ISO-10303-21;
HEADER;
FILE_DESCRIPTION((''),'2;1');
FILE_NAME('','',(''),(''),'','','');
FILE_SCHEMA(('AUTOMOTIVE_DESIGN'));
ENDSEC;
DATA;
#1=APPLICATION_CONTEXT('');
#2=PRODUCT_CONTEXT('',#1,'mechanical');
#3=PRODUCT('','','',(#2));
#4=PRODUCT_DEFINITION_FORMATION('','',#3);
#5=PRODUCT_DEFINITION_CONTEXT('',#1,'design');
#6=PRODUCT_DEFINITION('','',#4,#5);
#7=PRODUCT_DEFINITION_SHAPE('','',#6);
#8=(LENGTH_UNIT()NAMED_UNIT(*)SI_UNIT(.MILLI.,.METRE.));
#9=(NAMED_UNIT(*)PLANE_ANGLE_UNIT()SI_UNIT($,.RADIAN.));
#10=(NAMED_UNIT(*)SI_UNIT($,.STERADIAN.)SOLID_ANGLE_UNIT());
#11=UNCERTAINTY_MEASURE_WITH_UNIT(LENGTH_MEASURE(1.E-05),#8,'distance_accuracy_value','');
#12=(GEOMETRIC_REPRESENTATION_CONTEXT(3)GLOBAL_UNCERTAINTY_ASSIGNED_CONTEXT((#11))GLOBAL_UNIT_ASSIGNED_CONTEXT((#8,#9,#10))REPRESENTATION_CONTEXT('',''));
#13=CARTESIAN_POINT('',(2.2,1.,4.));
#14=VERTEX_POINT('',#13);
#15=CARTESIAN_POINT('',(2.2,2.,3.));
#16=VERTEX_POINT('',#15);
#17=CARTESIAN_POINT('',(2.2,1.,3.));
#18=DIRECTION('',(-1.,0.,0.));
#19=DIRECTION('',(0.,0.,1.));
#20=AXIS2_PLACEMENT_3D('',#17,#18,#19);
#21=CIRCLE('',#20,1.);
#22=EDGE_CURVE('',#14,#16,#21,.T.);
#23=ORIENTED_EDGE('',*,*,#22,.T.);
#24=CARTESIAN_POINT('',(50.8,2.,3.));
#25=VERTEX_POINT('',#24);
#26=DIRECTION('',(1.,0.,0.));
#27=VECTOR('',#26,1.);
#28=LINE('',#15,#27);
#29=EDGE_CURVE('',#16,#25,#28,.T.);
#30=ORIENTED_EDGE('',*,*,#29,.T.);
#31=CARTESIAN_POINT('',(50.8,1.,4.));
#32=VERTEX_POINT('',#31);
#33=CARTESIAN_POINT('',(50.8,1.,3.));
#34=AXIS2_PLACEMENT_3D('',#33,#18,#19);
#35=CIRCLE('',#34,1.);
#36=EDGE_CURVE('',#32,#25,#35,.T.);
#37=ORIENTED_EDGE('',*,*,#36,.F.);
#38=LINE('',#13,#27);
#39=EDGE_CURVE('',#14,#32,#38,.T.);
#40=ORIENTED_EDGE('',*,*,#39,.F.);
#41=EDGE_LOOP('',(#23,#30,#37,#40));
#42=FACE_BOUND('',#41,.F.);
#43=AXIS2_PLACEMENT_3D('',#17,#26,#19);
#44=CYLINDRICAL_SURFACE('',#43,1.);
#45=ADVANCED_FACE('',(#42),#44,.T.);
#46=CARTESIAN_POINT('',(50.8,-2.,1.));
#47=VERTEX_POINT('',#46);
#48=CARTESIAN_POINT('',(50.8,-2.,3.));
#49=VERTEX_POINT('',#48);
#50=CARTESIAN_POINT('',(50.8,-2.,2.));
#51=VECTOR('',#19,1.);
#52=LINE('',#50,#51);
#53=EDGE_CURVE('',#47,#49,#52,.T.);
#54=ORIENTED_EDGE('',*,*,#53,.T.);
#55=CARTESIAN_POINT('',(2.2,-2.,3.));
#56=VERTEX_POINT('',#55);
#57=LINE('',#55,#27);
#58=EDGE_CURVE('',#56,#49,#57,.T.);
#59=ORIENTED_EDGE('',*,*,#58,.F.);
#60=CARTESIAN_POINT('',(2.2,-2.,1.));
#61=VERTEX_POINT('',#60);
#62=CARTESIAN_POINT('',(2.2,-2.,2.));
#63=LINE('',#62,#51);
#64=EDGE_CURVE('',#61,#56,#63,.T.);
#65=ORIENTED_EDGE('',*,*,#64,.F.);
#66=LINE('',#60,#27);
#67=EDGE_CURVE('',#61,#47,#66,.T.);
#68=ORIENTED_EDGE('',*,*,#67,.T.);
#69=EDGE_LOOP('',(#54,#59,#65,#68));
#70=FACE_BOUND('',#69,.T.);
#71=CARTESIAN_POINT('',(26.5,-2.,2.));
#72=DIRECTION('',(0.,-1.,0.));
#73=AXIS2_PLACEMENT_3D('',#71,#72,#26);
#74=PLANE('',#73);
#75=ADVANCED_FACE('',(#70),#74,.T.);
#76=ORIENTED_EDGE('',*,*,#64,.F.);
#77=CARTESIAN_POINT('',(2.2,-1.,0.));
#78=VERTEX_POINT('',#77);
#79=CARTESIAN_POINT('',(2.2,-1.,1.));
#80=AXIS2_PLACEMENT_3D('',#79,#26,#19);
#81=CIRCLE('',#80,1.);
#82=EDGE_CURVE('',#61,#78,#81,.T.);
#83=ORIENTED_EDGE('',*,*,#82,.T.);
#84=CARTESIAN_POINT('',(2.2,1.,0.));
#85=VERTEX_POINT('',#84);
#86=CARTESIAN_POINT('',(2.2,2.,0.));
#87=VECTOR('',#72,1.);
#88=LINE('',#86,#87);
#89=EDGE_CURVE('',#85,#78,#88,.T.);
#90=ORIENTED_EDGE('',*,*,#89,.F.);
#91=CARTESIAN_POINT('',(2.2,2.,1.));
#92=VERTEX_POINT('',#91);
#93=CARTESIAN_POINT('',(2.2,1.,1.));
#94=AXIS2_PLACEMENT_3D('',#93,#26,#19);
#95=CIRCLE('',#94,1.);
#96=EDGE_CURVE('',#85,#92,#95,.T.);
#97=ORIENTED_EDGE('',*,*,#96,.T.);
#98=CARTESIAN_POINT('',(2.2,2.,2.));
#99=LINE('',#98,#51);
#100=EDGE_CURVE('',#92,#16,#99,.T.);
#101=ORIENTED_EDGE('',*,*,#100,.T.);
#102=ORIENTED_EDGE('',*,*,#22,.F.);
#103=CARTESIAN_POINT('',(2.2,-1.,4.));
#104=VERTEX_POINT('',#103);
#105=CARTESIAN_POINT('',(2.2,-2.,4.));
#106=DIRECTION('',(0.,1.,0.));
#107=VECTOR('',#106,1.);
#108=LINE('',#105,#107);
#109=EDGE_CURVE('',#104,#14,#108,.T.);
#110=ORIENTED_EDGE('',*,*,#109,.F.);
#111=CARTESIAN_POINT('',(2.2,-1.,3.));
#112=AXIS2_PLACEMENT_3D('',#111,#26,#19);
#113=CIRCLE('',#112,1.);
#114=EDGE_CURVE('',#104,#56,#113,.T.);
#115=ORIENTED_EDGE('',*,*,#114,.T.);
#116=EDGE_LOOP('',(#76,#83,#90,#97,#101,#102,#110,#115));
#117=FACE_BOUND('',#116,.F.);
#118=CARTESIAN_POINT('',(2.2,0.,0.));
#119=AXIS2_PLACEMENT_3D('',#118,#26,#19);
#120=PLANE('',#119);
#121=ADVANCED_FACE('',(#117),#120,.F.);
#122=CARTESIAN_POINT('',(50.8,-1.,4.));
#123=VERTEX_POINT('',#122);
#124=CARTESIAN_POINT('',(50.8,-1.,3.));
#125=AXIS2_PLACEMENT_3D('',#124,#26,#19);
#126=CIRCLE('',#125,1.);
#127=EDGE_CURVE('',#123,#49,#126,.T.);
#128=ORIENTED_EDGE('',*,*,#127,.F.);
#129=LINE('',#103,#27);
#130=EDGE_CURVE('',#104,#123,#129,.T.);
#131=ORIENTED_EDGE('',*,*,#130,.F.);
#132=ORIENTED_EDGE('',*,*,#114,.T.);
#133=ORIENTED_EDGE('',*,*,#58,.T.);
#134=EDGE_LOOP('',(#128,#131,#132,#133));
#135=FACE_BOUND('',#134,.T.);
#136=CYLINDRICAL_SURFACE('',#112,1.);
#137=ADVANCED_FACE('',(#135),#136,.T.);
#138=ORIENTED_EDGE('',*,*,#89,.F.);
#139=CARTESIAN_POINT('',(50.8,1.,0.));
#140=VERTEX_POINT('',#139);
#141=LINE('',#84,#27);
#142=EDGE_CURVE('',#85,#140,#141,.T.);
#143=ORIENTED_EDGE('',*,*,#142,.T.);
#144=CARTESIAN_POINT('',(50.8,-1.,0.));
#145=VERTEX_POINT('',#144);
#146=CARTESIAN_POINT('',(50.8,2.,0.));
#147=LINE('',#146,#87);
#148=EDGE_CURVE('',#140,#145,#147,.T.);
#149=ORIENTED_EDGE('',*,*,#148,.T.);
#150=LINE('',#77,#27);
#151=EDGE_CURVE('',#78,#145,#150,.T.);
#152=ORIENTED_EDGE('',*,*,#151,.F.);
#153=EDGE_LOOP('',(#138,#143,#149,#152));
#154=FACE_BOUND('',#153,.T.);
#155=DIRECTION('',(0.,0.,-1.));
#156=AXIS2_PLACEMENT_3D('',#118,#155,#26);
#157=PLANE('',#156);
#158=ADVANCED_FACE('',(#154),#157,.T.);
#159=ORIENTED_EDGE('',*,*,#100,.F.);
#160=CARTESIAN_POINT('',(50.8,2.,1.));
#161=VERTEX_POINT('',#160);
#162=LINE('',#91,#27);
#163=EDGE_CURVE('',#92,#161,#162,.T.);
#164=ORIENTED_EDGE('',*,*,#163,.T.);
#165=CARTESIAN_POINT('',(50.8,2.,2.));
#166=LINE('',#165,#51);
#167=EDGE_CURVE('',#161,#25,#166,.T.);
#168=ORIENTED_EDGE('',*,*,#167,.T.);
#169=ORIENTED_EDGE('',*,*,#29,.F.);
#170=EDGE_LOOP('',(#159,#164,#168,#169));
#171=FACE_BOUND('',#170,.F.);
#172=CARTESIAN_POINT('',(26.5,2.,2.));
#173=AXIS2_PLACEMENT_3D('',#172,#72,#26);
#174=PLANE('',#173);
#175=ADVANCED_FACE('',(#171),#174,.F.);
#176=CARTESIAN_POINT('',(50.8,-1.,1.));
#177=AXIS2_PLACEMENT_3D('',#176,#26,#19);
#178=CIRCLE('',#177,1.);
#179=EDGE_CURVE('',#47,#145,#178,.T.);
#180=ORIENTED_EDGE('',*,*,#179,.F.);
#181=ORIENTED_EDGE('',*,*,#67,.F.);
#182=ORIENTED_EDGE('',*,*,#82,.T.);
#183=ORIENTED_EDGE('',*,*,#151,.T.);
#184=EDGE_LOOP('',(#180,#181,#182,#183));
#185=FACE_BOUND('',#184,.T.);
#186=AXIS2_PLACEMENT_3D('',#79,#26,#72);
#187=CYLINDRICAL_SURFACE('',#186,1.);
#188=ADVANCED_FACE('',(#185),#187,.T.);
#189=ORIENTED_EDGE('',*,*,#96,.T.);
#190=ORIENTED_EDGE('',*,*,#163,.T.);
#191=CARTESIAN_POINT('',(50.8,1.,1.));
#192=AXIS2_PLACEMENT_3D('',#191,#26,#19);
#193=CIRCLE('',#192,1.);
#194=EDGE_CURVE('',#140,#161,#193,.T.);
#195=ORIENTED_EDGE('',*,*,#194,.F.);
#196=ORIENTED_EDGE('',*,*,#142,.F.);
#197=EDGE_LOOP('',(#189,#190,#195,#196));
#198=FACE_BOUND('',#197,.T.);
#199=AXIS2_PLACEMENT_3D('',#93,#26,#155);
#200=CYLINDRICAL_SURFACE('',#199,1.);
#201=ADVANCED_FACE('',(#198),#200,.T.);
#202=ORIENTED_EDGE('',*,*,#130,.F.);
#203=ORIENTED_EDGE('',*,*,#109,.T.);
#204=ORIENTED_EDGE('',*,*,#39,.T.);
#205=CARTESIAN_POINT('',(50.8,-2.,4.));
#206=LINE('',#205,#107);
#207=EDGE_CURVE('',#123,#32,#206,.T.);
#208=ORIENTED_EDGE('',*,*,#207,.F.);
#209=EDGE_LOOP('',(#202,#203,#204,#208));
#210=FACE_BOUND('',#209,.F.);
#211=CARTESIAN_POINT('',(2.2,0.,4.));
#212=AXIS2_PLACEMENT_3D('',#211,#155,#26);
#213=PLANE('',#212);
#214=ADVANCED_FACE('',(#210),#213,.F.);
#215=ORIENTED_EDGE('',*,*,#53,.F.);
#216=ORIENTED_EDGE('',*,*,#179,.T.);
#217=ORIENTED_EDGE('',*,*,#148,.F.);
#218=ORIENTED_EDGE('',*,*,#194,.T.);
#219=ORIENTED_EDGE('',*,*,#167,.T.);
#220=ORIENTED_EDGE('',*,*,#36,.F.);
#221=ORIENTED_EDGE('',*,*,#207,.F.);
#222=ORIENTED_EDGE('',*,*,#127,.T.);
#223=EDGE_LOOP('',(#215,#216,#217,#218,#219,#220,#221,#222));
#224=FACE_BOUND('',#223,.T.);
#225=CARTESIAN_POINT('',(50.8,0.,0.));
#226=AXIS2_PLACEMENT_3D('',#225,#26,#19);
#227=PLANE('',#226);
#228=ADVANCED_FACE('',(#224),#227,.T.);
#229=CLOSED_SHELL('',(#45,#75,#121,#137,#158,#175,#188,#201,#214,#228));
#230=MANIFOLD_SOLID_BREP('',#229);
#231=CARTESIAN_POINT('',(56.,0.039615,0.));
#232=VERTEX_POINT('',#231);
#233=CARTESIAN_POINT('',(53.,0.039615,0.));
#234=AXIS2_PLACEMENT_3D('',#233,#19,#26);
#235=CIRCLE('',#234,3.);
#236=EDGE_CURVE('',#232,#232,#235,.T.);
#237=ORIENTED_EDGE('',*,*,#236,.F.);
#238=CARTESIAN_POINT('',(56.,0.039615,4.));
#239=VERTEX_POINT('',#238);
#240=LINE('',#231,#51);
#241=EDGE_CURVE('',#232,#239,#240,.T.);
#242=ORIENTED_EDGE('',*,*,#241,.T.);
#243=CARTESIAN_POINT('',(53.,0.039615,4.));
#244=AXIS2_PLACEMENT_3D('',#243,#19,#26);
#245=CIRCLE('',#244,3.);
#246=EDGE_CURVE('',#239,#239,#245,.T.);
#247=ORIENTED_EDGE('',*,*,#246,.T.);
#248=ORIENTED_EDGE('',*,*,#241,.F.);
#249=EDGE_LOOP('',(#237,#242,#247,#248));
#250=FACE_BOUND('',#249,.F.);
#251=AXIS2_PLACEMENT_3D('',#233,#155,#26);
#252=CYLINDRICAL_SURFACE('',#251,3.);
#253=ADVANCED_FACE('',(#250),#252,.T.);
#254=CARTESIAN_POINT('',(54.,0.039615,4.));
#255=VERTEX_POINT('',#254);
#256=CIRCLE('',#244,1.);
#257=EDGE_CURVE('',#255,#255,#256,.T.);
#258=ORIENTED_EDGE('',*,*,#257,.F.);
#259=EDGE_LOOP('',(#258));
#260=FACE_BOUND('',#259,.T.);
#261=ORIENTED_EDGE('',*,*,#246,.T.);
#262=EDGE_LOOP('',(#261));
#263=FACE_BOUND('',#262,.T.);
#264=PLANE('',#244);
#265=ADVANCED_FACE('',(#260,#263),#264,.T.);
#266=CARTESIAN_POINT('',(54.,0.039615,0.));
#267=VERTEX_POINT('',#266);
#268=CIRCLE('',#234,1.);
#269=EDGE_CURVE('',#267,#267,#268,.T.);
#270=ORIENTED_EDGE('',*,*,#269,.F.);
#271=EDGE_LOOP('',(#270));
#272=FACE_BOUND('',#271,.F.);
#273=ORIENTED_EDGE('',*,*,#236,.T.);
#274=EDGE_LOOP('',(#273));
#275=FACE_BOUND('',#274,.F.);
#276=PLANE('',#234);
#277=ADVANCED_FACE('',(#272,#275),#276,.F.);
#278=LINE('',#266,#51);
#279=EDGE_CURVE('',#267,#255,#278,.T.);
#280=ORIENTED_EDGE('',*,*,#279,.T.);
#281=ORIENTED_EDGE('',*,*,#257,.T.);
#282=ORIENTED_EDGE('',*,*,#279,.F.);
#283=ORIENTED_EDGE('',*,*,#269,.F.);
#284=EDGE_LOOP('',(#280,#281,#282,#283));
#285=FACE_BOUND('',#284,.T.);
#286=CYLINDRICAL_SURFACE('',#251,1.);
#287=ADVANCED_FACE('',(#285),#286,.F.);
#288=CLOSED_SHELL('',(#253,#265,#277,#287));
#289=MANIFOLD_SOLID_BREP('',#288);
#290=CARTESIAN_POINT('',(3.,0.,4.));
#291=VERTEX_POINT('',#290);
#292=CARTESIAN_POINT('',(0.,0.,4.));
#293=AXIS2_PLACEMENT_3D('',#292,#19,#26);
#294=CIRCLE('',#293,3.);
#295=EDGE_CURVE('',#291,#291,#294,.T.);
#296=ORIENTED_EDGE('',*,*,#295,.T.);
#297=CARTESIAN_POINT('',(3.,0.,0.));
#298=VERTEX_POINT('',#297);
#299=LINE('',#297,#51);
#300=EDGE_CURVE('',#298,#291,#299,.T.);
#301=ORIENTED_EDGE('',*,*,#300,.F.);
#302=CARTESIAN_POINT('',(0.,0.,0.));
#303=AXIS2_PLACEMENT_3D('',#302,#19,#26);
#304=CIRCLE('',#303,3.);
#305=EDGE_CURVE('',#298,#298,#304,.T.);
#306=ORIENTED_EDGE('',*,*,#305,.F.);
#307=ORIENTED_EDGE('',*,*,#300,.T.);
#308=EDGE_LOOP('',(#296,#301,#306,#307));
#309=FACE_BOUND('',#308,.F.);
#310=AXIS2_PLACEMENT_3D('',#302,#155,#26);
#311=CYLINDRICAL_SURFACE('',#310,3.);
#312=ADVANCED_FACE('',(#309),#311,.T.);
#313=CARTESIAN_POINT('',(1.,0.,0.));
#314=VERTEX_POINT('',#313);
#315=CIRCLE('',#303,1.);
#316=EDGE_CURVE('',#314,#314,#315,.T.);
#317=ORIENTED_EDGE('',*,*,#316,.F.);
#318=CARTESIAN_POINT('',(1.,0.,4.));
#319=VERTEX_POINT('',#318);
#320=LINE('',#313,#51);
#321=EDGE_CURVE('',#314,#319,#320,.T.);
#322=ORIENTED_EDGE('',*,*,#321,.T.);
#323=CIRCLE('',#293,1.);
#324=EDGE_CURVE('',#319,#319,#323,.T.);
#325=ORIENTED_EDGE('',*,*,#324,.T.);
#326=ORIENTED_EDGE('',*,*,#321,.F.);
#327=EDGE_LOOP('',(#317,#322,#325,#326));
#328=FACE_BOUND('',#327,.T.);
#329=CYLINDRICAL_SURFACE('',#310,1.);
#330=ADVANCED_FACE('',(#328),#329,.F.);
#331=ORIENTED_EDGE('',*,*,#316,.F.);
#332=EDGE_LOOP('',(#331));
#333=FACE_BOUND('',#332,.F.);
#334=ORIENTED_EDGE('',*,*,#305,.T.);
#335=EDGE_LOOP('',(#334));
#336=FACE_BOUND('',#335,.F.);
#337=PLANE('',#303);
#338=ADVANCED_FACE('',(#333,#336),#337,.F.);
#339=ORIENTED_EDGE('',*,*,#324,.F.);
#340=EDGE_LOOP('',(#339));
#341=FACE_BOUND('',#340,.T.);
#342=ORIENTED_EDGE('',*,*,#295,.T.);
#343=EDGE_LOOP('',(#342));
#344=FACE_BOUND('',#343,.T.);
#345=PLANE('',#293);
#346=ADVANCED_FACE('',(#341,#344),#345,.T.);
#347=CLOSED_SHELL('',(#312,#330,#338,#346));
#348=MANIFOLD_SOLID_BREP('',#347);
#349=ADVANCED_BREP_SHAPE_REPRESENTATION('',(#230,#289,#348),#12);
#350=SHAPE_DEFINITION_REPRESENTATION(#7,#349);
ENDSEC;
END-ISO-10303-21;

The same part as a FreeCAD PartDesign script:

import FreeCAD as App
import Part
import Sketcher

V = App.Vector
Q = App.Units.Quantity


def edges_at(feature, points):
    """Names of the edges that pass closest to the given points."""
    edges = feature.Shape.Edges
    near = lambda p: min(range(len(edges)), key=lambda i: edges[i].distToShape(Part.Vertex(*p))[0])
    return sorted({f"Edge{near(p) + 1}" for p in points})

doc = App.newDocument("Part")
params = doc.addObject("Spreadsheet::Sheet", "Params")
for row, (alias, value) in enumerate([
    ("sketch1_diameter", "6 mm"),
    ("sketch1_diameter2", "2 mm"),
    ("pad1_length", "4 mm"),
    ("sketch2_height", "4 mm"),
    ("sketch2_width", "48.6 mm"),
    ("pad2_length", "4 mm"),
    ("fillet_radius", "1 mm"),
    ("fillet2_radius", "1 mm"),
    ("fillet3_radius", "1 mm"),
    ("fillet4_radius", "1 mm"),
], start=1):
    params.set(f"A{row}", alias)
    params.set(f"B{row}", "=" + value)
    params.setAlias(f"B{row}", alias)

body = doc.addObject("PartDesign::Body", "Body")
body.AllowCompound = True

sketch1 = body.newObject("Sketcher::SketchObject", "Sketch")
sketch1.AttachmentSupport = (doc.getObject("XY_Plane"), [""])
sketch1.MapMode = "FlatFace"
sketch1.addGeometry([
    Part.Circle(V(0, 0, 0), V(0, 0, 1), 3),
    Part.Circle(V(0, 0, 0), V(0, 0, 1), 1),
    Part.Circle(V(53, 0, 0), V(0, 0, 1), 3),
    Part.Circle(V(53, 0, 0), V(0, 0, 1), 1),
], False)
sketch1.addConstraint([
    Sketcher.Constraint("Coincident", 0, 3, -1, 1),
    Sketcher.Constraint("Coincident", 1, 3, -1, 1),
    Sketcher.Constraint("Coincident", 3, 3, 2, 3),
    Sketcher.Constraint("Equal", 0, 2),
    Sketcher.Constraint("Equal", 1, 3),
    Sketcher.Constraint("Diameter", 0, Q("6 mm")),
    Sketcher.Constraint("Diameter", 1, Q("2 mm")),
    Sketcher.Constraint("DistanceX", -1, 1, 2, 3, Q("53 mm")),
    Sketcher.Constraint("DistanceY", -1, 1, 2, 3, Q("0.039615 mm")),
])
sketch1.setExpression("Constraints[5]", "Params.sketch1_diameter")
sketch1.setExpression("Constraints[6]", "Params.sketch1_diameter2")
pad1 = body.newObject("PartDesign::Pad", "Pad")
pad1.Profile = sketch1
pad1.setExpression("Length", "Params.pad1_length")
body2 = doc.addObject("PartDesign::Body", "Body001")

sketch2 = body2.newObject("Sketcher::SketchObject", "Sketch001")
sketch2.AttachmentSupport = (doc.getObject("XZ_Plane001"), [""])
sketch2.MapMode = "FlatFace"
sketch2.addGeometry([
    Part.LineSegment(V(2.2, 4, 0), V(2.2, 0, 0)),
    Part.LineSegment(V(2.2, 0, 0), V(50.8, 0, 0)),
    Part.LineSegment(V(50.8, 0, 0), V(50.8, 4, 0)),
    Part.LineSegment(V(50.8, 4, 0), V(2.2, 4, 0)),
], False)
sketch2.addConstraint([
    Sketcher.Constraint("Coincident", 0, 2, 1, 1),
    Sketcher.Constraint("Coincident", 1, 2, 2, 1),
    Sketcher.Constraint("Coincident", 2, 2, 3, 1),
    Sketcher.Constraint("Coincident", 3, 2, 0, 1),
    Sketcher.Constraint("Vertical", 0),
    Sketcher.Constraint("Horizontal", 1),
    Sketcher.Constraint("Vertical", 2),
    Sketcher.Constraint("Horizontal", 3),
    Sketcher.Constraint("PointOnObject", 0, 2, -1),
    Sketcher.Constraint("DistanceY", 0, 2, 0, 1, Q("4 mm")),
    Sketcher.Constraint("DistanceX", 1, 1, 1, 2, Q("48.6 mm")),
    Sketcher.Constraint("DistanceX", -1, 1, 0, 2, Q("2.2 mm")),
])
sketch2.setExpression("Constraints[9]", "Params.sketch2_height")
sketch2.setExpression("Constraints[10]", "Params.sketch2_width")
pad2 = body2.newObject("PartDesign::Pad", "Pad001")
pad2.Profile = sketch2
pad2.setExpression("Length", "Params.pad2_length")
pad2.Midplane = True
doc.recompute()

fillet = body2.newObject("PartDesign::Fillet", "Fillet")
fillet.Base = (pad2, edges_at(pad2, [(26.5, 2, 4)]))
fillet.setExpression("Radius", "Params.fillet_radius")
doc.recompute()

fillet2 = body2.newObject("PartDesign::Fillet", "Fillet001")
fillet2.Base = (fillet, edges_at(fillet, [(26.5, -2, 4)]))
fillet2.setExpression("Radius", "Params.fillet2_radius")
doc.recompute()

fillet3 = body2.newObject("PartDesign::Fillet", "Fillet002")
fillet3.Base = (fillet2, edges_at(fillet2, [(26.5, -2, 0)]))
fillet3.setExpression("Radius", "Params.fillet3_radius")
doc.recompute()

fillet4 = body2.newObject("PartDesign::Fillet", "Fillet003")
fillet4.Base = (fillet3, edges_at(fillet3, [(26.5, 2, 0)]))
fillet4.setExpression("Radius", "Params.fillet4_radius")

doc.recompute()
